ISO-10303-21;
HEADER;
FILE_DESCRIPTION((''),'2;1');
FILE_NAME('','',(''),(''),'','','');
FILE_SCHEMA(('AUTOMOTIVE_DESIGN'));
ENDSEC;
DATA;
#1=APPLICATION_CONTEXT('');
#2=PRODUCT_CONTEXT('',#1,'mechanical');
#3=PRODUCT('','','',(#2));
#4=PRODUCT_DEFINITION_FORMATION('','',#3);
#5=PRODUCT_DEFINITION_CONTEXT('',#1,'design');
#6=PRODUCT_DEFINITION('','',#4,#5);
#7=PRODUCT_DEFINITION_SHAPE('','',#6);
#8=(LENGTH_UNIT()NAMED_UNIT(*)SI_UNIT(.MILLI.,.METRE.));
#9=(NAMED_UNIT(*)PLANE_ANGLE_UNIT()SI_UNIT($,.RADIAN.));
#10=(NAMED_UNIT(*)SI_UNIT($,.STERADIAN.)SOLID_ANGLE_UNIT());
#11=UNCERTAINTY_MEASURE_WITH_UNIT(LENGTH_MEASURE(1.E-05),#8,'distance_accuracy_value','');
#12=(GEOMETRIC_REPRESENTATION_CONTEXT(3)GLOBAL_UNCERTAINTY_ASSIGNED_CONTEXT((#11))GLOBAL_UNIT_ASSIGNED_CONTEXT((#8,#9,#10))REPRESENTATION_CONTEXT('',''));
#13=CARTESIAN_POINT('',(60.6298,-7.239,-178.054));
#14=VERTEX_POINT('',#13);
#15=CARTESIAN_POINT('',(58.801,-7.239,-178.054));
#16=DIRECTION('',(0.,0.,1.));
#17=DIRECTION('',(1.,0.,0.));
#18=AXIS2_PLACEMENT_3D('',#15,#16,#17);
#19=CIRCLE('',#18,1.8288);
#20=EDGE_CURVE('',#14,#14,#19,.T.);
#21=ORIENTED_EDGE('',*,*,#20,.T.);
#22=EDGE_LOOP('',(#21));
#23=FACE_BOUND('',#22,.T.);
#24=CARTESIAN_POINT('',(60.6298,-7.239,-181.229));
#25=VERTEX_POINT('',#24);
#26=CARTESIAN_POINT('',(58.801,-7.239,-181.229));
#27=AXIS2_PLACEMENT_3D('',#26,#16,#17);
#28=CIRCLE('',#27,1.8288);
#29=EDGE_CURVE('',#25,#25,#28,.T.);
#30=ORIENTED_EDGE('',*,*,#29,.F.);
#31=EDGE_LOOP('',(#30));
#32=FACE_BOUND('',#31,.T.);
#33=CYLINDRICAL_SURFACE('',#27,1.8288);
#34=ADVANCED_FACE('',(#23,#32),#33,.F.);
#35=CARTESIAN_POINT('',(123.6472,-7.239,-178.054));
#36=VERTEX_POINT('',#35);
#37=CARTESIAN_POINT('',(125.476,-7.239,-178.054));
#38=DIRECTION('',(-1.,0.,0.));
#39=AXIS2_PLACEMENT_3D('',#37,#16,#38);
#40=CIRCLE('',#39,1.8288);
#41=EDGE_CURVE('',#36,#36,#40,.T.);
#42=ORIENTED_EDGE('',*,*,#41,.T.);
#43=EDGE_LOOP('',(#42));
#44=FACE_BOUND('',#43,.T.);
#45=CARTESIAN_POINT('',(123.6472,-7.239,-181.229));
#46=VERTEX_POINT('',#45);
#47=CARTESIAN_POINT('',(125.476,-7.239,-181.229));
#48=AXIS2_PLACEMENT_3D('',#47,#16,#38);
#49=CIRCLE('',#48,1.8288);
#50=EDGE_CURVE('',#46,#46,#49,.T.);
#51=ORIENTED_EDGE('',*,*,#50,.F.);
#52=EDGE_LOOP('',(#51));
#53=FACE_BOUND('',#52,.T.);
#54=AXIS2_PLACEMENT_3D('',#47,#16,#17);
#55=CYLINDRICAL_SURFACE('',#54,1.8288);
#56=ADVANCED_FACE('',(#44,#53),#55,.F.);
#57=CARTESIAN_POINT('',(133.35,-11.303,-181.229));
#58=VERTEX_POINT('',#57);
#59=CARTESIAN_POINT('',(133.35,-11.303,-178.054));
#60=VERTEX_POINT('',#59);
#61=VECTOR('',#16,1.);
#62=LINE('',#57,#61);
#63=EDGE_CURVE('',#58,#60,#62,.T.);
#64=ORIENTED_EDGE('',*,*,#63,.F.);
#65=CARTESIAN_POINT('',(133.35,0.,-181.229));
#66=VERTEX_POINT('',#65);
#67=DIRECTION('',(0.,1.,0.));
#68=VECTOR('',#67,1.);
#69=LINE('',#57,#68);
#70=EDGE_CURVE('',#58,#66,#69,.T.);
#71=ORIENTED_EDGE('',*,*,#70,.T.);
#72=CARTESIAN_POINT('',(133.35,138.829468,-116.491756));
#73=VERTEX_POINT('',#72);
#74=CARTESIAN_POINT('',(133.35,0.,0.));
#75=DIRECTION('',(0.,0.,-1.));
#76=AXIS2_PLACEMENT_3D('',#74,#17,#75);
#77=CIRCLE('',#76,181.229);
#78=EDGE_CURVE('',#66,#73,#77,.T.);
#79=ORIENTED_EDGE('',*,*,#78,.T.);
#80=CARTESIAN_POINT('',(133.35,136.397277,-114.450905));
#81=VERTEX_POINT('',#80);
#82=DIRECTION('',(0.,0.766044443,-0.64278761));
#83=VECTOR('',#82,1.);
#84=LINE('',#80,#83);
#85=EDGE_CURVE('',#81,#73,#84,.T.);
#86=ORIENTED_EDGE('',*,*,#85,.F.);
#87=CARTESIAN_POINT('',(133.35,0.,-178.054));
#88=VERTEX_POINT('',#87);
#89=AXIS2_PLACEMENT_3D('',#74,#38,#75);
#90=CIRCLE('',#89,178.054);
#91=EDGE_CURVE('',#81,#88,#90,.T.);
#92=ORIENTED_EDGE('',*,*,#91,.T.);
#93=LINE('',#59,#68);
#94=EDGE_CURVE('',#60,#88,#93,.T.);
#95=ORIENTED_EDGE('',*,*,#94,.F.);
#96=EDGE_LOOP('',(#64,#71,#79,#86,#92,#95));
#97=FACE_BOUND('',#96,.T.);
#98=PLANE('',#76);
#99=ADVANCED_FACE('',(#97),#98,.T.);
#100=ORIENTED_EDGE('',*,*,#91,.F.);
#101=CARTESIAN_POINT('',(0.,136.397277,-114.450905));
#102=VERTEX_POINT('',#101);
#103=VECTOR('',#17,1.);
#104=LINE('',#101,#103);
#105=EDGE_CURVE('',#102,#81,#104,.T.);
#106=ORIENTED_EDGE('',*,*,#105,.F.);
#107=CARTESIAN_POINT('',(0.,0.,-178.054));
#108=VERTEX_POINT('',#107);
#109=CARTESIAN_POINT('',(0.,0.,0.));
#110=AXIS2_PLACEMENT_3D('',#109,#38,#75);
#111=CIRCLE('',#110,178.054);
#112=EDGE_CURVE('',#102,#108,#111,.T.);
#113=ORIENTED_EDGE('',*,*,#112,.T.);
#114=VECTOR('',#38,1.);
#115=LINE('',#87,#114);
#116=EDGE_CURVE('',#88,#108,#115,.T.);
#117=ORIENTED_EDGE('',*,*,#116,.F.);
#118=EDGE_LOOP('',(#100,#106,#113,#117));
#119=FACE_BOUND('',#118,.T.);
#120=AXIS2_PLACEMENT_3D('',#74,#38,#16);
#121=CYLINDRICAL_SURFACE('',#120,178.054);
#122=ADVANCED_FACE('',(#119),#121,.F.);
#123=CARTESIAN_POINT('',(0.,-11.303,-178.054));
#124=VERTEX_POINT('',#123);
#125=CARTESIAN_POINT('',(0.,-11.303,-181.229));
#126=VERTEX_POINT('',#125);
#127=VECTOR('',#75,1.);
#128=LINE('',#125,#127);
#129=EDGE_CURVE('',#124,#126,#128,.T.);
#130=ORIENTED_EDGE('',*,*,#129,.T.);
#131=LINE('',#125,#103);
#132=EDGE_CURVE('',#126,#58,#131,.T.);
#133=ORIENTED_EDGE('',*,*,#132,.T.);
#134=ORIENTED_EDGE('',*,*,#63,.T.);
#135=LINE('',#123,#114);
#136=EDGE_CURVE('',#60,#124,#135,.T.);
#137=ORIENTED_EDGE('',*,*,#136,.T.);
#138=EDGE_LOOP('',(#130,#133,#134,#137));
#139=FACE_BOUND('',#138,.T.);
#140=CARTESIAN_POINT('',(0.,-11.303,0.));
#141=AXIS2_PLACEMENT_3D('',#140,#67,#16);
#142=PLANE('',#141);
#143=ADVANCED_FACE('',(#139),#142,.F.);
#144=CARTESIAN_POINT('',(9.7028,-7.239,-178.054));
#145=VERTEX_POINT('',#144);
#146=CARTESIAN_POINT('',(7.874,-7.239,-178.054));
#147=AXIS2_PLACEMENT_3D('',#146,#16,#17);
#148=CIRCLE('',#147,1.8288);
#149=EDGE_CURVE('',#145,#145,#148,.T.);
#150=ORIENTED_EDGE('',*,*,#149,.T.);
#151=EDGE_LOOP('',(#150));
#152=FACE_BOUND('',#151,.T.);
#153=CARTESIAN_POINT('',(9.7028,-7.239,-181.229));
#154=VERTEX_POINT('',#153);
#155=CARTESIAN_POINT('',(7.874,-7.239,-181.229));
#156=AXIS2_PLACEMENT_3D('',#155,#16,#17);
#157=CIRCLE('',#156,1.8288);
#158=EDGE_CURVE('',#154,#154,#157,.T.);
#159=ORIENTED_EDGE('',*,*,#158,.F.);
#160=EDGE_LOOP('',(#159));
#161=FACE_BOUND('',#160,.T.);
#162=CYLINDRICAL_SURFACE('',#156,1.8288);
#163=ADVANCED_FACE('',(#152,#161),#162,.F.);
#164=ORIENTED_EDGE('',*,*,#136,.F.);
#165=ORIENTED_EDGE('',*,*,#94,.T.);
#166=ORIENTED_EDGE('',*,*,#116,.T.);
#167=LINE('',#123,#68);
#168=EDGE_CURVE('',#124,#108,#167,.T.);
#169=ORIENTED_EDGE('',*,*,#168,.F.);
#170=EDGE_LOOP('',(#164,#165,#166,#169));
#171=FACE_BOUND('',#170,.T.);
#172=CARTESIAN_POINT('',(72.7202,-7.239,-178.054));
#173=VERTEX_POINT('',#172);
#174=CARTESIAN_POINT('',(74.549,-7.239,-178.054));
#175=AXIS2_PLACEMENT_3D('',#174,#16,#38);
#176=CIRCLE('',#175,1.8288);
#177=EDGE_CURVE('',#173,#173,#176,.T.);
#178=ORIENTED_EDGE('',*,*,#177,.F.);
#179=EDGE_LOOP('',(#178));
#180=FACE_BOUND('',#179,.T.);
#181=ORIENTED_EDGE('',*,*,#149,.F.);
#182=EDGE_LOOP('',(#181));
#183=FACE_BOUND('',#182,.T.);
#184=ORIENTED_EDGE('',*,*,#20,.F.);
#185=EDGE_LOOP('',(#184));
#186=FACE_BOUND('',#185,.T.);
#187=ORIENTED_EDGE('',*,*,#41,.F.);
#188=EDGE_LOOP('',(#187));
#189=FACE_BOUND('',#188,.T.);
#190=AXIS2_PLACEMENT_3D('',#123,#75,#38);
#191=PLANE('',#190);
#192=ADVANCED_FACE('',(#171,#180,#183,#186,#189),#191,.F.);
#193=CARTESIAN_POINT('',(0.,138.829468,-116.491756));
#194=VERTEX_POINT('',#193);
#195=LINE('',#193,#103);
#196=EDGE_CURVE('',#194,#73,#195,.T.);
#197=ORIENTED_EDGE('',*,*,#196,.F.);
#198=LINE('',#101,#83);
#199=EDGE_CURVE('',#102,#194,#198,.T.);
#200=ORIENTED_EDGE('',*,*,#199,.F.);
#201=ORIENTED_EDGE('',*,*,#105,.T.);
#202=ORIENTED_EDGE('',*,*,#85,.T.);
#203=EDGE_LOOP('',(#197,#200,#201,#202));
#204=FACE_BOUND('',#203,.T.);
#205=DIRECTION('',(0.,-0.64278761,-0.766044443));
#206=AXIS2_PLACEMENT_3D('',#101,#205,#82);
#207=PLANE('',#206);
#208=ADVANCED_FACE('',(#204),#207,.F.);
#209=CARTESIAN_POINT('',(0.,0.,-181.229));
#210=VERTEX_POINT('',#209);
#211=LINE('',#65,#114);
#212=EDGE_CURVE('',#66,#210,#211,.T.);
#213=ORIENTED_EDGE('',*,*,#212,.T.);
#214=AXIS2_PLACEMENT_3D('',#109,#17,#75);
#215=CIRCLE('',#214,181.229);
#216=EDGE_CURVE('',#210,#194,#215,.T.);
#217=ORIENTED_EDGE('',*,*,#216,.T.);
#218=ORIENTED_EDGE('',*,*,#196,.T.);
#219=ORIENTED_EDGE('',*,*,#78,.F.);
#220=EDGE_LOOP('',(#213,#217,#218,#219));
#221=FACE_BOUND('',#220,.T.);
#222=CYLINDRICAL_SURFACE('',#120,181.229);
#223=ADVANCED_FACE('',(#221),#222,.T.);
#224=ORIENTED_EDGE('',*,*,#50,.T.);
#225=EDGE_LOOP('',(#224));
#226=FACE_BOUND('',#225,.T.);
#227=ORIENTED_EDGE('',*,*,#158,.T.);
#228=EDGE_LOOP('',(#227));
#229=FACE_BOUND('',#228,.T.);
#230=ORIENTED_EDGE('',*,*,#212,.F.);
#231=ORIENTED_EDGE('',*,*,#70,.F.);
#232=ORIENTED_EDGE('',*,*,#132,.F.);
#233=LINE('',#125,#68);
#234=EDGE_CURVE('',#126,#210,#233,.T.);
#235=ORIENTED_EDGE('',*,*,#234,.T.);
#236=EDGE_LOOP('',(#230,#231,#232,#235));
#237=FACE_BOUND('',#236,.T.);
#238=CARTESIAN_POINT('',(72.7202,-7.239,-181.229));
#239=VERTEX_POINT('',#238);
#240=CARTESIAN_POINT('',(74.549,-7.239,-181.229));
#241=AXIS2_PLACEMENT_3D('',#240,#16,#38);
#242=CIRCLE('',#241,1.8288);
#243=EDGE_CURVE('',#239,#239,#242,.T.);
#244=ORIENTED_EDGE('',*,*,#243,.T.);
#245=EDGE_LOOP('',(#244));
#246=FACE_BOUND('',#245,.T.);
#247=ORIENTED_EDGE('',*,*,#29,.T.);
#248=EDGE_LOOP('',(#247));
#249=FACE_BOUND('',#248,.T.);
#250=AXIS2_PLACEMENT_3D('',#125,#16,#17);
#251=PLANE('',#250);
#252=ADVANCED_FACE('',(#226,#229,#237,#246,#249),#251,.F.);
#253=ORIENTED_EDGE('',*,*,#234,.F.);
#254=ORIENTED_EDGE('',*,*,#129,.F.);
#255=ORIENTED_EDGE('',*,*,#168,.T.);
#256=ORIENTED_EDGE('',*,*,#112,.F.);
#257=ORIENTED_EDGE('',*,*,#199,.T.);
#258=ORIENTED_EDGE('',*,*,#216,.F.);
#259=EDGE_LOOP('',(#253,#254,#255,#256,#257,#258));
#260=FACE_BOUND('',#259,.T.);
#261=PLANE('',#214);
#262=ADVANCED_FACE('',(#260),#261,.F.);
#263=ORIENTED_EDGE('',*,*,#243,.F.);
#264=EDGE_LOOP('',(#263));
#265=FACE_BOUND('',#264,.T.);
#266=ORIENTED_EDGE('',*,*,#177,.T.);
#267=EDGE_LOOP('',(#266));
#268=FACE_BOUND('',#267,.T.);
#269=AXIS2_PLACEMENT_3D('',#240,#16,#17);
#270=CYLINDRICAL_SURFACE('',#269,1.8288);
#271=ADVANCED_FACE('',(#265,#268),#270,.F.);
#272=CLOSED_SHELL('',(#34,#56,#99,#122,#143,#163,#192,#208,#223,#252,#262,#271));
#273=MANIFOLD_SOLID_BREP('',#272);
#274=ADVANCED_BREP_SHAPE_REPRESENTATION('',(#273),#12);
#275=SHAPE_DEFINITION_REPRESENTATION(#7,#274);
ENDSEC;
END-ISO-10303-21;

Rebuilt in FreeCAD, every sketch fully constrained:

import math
import FreeCAD as App
import Part
import Sketcher
Q = App.Units.Quantity

doc = App.newDocument("Part")
body = doc.addObject("PartDesign::Body", "Body")

# Sketch on YZ plane
sketch1 = body.newObject("Sketcher::SketchObject", "Sketch")
sketch1.AttachmentSupport = (doc.getObject("YZ_Plane"), [""])
sketch1.MapMode = "FlatFace"
sketch1.addGeometry([
    Part.LineSegment(App.Vector(181.229, 0, 0), App.Vector(178.054, 0, 0)),
    Part.ArcOfCircle(Part.Circle(App.Vector(0, 0, 0), App.Vector(0, 0, 1), 178.054), math.radians(-90), math.radians(0)),
    Part.LineSegment(App.Vector(0, -178.054, 0), App.Vector(0, -181.229, 0)),
    Part.ArcOfCircle(Part.Circle(App.Vector(0, 0, 0), App.Vector(0, 0, 1), 181.229), math.radians(-90), math.radians(0)),
], False)
sketch1.addConstraint([
    Sketcher.Constraint("Coincident", 0, 2, 1, 2),
    Sketcher.Constraint("Coincident", 1, 1, 2, 1),
    Sketcher.Constraint("Coincident", 2, 2, 3, 1),
    Sketcher.Constraint("Coincident", 3, 2, 0, 1),
    Sketcher.Constraint("Horizontal", 0),
    Sketcher.Constraint("Vertical", 2),
    Sketcher.Constraint("Coincident", 1, 3, -1, 1),
    Sketcher.Constraint("Coincident", 3, 3, -1, 1),
    Sketcher.Constraint("PointOnObject", 0, 2, -1),
    Sketcher.Constraint("PointOnObject", 1, 1, -2),
    Sketcher.Constraint("Radius", 1, Q("7.01 in")),
    Sketcher.Constraint("Radius", 3, Q("7.135 in")),
])
pad1 = body.newObject("PartDesign::Pad", "Pad")
pad1.Profile = sketch1
pad1.Length = Q("5.25 in")

# Sketch on YZ plane
sketch2 = body.newObject("Sketcher::SketchObject", "Sketch001")
sketch2.AttachmentSupport = (doc.getObject("YZ_Plane"), [""])
sketch2.MapMode = "FlatFace"
sketch2.AttachmentOffset = App.Placement(App.Vector(0, 0, 5.25 * 25.4), App.Rotation())
sketch2.addGeometry([
    Part.LineSegment(App.Vector(136.397277, -114.450905, 0), App.Vector(138.829468, -116.491756, 0)),
    Part.ArcOfCircle(Part.Circle(App.Vector(0, 0, 0), App.Vector(0, 0, 1), 181.229), math.radians(-40), math.radians(0)),
    Part.LineSegment(App.Vector(181.229, 0, 0), App.Vector(178.054, 0, 0)),
    Part.ArcOfCircle(Part.Circle(App.Vector(0, 0, 0), App.Vector(0, 0, 1), 178.054), math.radians(-40), math.radians(0)),
], False)
sketch2.addConstraint([
    Sketcher.Constraint("Coincident", 0, 2, 1, 1),
    Sketcher.Constraint("Coincident", 1, 2, 2, 1),
    Sketcher.Constraint("Coincident", 2, 2, 3, 2),
    Sketcher.Constraint("Coincident", 3, 1, 0, 1),
    Sketcher.Constraint("Horizontal", 2),
    Sketcher.Constraint("Coincident", 1, 3, -1, 1),
    Sketcher.Constraint("Coincident", 3, 3, -1, 1),
    Sketcher.Constraint("PointOnObject", 1, 2, -1),
    Sketcher.Constraint("Radius", 3, Q("7.01 in")),
    Sketcher.Constraint("Angle", 0, Q("-40 deg")),
    Sketcher.Constraint("Radius", 1, Q("7.135 in")),
    Sketcher.Constraint("DistanceX", -1, 1, 0, 2, 138.829468),
])
pocket1 = body.newObject("PartDesign::Pocket", "Pocket")
pocket1.Profile = sketch2
pocket1.Type = "ThroughAll"

# Sketch on XZ plane
sketch3 = body.newObject("Sketcher::SketchObject", "Sketch002")
sketch3.AttachmentSupport = (doc.getObject("XZ_Plane"), [""])
sketch3.MapMode = "FlatFace"
sketch3.addGeometry([
    Part.LineSegment(App.Vector(0, -178.054, 0), App.Vector(0, -181.229, 0)),
    Part.LineSegment(App.Vector(0, -181.229, 0), App.Vector(133.35, -181.229, 0)),
    Part.LineSegment(App.Vector(133.35, -181.229, 0), App.Vector(133.35, -178.054, 0)),
    Part.LineSegment(App.Vector(133.35, -178.054, 0), App.Vector(0, -178.054, 0)),
], False)
sketch3.addConstraint([
    Sketcher.Constraint("Coincident", 0, 2, 1, 1),
    Sketcher.Constraint("Coincident", 1, 2, 2, 1),
    Sketcher.Constraint("Coincident", 2, 2, 3, 1),
    Sketcher.Constraint("Coincident", 3, 2, 0, 1),
    Sketcher.Constraint("Vertical", 0),
    Sketcher.Constraint("Horizontal", 1),
    Sketcher.Constraint("Vertical", 2),
    Sketcher.Constraint("Horizontal", 3),
    Sketcher.Constraint("PointOnObject", 0, 2, -2),
    Sketcher.Constraint("DistanceX", 1, 1, 1, 2, Q("5.25 in")),
    Sketcher.Constraint("DistanceY", 0, 2, 0, 1, Q("0.125 in")),
    Sketcher.Constraint("DistanceY", 2, 2, -1, 1, Q("7.01 in")),
])
pad2 = body.newObject("PartDesign::Pad", "Pad001")
pad2.Profile = sketch3
pad2.Length = Q("0.445 in")

# Sketch on XY plane
sketch4 = body.newObject("Sketcher::SketchObject", "Sketch003")
sketch4.AttachmentSupport = (doc.getObject("XY_Plane"), [""])
sketch4.MapMode = "FlatFace"
sketch4.AttachmentOffset = App.Placement(App.Vector(0, 0, -7.01 * 25.4), App.Rotation())
sketch4.addGeometry([
    Part.Circle(App.Vector(7.874, -7.239, 0), App.Vector(0, 0, 1), 1.8288),
    Part.Circle(App.Vector(58.801, -7.239, 0), App.Vector(0, 0, 1), 1.8288),
    Part.Circle(App.Vector(74.549, -7.239, 0), App.Vector(0, 0, 1), 1.8288),
    Part.Circle(App.Vector(125.476, -7.239, 0), App.Vector(0, 0, 1), 1.8288),
], False)
sketch4.addConstraint([
    Sketcher.Constraint("Equal", 0, 1),
    Sketcher.Constraint("Equal", 1, 2),
    Sketcher.Constraint("Equal", 2, 3),
    Sketcher.Constraint("Horizontal", 0, 3, 1, 3),
    Sketcher.Constraint("Horizontal", 1, 3, 2, 3),
    Sketcher.Constraint("Horizontal", 2, 3, 3, 3),
    Sketcher.Constraint("Diameter", 0, Q("0.144 in")),
    Sketcher.Constraint("DistanceX", -1, 1, 0, 3, Q("0.31 in")),
    Sketcher.Constraint("DistanceX", -1, 1, 3, 3, Q("4.94 in")),
    Sketcher.Constraint("DistanceX", 1, 3, 2, 3, Q("0.62 in")),
    Sketcher.Constraint("DistanceY", 0, 3, -1, 1, Q("0.285 in")),
    Sketcher.Constraint("DistanceX", -1, 1, 1, 3, Q("2.315 in")),
])
pocket2 = body.newObject("PartDesign::Pocket", "Pocket001")
pocket2.Profile = sketch4
pocket2.Type = "ThroughAll"

doc.recompute()
